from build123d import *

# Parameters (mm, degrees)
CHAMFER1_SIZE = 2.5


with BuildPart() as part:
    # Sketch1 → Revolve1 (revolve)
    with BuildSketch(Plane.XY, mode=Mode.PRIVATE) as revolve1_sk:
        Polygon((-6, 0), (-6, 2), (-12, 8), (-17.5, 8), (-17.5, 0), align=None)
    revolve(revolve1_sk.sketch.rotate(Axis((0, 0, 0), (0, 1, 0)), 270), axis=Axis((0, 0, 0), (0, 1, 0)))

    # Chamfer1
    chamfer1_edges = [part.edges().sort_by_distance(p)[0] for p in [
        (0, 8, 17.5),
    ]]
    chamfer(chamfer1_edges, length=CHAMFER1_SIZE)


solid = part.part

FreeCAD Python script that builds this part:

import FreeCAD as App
import Part
import Sketcher
from FreeCAD import Vector
Q = App.Units.Quantity


def edges_at(feature, points):
    """Names of the edges that pass closest to the given points."""
    edges = feature.Shape.Edges
    near = lambda p: min(range(len(edges)), key=lambda i: edges[i].distToShape(Part.Vertex(*p))[0])
    return sorted({f"Edge{near(p) + 1}" for p in points})

doc = App.newDocument("Part")
params = doc.addObject("Spreadsheet::Sheet", "Params")
for row, (alias, value) in enumerate([
    ("sketch1_height", "2 mm"),
    ("sketch1_height2", "8 mm"),
    ("sketch1_width", "5.5 mm"),
    ("revolution_angle", "360 deg"),
    ("chamfer_size", "2.5 mm"),
], start=1):
    params.set(f"A{row}", alias)
    params.set(f"B{row}", "=" + value)
    params.setAlias(f"B{row}", alias)

body = doc.addObject("PartDesign::Body", "Body")

# Sketch on XY plane
sketch1 = body.newObject("Sketcher::SketchObject", "Sketch")
sketch1.AttachmentSupport = (doc.getObject("XY_Plane"), [""])
sketch1.MapMode = "FlatFace"
sketch1.addGeometry([
    Part.LineSegment(Vector(-6, 0, 0), Vector(-6, 2, 0)),  # 0
    Part.LineSegment(Vector(-6, 2, 0), Vector(-12, 8, 0)),  # 1
    Part.LineSegment(Vector(-12, 8, 0), Vector(-17.5, 8, 0)),  # 2
    Part.LineSegment(Vector(-17.5, 8, 0), Vector(-17.5, 0, 0)),  # 3
    Part.LineSegment(Vector(-17.5, 0, 0), Vector(-6, 0, 0)),  # 4
], False)
sketch1.addConstraint([
    Sketcher.Constraint("Coincident", 0, 2, 1, 1),
    Sketcher.Constraint("Coincident", 1, 2, 2, 1),
    Sketcher.Constraint("Coincident", 2, 2, 3, 1),
    Sketcher.Constraint("Coincident", 3, 2, 4, 1),
    Sketcher.Constraint("Coincident", 4, 2, 0, 1),
    Sketcher.Constraint("Vertical", 0),
    Sketcher.Constraint("Horizontal", 2),
    Sketcher.Constraint("Vertical", 3),
    Sketcher.Constraint("Horizontal", 4),
    Sketcher.Constraint("PointOnObject", 3, 2, -1),
    Sketcher.Constraint("DistanceY", 0, 1, 0, 2, Q("2 mm")),
    Sketcher.Constraint("DistanceY", 3, 2, 3, 1, Q("8 mm")),
    Sketcher.Constraint("Angle", 1, Q("135 deg")),
    Sketcher.Constraint("DistanceX", 2, 2, 2, 1, Q("5.5 mm")),
    Sketcher.Constraint("DistanceX", 0, 2, -1, 1, Q("6 mm")),
])
sketch1.setExpression("Constraints[10]", "Params.sketch1_height")
sketch1.setExpression("Constraints[11]", "Params.sketch1_height2")
sketch1.setExpression("Constraints[13]", "Params.sketch1_width")
revolution = body.newObject("PartDesign::Revolution", "Revolution")
revolution.Profile = sketch1
revolution.ReferenceAxis = (sketch1, ["V_Axis"])
revolution.setExpression("Angle", "Params.revolution_angle")
doc.recompute()

chamfer = body.newObject("PartDesign::Chamfer", "Chamfer")
chamfer.Base = (revolution, edges_at(revolution, [(0, 8, 17.5)]))
chamfer.setExpression("Size", "Params.chamfer_size")

doc.recompute()
